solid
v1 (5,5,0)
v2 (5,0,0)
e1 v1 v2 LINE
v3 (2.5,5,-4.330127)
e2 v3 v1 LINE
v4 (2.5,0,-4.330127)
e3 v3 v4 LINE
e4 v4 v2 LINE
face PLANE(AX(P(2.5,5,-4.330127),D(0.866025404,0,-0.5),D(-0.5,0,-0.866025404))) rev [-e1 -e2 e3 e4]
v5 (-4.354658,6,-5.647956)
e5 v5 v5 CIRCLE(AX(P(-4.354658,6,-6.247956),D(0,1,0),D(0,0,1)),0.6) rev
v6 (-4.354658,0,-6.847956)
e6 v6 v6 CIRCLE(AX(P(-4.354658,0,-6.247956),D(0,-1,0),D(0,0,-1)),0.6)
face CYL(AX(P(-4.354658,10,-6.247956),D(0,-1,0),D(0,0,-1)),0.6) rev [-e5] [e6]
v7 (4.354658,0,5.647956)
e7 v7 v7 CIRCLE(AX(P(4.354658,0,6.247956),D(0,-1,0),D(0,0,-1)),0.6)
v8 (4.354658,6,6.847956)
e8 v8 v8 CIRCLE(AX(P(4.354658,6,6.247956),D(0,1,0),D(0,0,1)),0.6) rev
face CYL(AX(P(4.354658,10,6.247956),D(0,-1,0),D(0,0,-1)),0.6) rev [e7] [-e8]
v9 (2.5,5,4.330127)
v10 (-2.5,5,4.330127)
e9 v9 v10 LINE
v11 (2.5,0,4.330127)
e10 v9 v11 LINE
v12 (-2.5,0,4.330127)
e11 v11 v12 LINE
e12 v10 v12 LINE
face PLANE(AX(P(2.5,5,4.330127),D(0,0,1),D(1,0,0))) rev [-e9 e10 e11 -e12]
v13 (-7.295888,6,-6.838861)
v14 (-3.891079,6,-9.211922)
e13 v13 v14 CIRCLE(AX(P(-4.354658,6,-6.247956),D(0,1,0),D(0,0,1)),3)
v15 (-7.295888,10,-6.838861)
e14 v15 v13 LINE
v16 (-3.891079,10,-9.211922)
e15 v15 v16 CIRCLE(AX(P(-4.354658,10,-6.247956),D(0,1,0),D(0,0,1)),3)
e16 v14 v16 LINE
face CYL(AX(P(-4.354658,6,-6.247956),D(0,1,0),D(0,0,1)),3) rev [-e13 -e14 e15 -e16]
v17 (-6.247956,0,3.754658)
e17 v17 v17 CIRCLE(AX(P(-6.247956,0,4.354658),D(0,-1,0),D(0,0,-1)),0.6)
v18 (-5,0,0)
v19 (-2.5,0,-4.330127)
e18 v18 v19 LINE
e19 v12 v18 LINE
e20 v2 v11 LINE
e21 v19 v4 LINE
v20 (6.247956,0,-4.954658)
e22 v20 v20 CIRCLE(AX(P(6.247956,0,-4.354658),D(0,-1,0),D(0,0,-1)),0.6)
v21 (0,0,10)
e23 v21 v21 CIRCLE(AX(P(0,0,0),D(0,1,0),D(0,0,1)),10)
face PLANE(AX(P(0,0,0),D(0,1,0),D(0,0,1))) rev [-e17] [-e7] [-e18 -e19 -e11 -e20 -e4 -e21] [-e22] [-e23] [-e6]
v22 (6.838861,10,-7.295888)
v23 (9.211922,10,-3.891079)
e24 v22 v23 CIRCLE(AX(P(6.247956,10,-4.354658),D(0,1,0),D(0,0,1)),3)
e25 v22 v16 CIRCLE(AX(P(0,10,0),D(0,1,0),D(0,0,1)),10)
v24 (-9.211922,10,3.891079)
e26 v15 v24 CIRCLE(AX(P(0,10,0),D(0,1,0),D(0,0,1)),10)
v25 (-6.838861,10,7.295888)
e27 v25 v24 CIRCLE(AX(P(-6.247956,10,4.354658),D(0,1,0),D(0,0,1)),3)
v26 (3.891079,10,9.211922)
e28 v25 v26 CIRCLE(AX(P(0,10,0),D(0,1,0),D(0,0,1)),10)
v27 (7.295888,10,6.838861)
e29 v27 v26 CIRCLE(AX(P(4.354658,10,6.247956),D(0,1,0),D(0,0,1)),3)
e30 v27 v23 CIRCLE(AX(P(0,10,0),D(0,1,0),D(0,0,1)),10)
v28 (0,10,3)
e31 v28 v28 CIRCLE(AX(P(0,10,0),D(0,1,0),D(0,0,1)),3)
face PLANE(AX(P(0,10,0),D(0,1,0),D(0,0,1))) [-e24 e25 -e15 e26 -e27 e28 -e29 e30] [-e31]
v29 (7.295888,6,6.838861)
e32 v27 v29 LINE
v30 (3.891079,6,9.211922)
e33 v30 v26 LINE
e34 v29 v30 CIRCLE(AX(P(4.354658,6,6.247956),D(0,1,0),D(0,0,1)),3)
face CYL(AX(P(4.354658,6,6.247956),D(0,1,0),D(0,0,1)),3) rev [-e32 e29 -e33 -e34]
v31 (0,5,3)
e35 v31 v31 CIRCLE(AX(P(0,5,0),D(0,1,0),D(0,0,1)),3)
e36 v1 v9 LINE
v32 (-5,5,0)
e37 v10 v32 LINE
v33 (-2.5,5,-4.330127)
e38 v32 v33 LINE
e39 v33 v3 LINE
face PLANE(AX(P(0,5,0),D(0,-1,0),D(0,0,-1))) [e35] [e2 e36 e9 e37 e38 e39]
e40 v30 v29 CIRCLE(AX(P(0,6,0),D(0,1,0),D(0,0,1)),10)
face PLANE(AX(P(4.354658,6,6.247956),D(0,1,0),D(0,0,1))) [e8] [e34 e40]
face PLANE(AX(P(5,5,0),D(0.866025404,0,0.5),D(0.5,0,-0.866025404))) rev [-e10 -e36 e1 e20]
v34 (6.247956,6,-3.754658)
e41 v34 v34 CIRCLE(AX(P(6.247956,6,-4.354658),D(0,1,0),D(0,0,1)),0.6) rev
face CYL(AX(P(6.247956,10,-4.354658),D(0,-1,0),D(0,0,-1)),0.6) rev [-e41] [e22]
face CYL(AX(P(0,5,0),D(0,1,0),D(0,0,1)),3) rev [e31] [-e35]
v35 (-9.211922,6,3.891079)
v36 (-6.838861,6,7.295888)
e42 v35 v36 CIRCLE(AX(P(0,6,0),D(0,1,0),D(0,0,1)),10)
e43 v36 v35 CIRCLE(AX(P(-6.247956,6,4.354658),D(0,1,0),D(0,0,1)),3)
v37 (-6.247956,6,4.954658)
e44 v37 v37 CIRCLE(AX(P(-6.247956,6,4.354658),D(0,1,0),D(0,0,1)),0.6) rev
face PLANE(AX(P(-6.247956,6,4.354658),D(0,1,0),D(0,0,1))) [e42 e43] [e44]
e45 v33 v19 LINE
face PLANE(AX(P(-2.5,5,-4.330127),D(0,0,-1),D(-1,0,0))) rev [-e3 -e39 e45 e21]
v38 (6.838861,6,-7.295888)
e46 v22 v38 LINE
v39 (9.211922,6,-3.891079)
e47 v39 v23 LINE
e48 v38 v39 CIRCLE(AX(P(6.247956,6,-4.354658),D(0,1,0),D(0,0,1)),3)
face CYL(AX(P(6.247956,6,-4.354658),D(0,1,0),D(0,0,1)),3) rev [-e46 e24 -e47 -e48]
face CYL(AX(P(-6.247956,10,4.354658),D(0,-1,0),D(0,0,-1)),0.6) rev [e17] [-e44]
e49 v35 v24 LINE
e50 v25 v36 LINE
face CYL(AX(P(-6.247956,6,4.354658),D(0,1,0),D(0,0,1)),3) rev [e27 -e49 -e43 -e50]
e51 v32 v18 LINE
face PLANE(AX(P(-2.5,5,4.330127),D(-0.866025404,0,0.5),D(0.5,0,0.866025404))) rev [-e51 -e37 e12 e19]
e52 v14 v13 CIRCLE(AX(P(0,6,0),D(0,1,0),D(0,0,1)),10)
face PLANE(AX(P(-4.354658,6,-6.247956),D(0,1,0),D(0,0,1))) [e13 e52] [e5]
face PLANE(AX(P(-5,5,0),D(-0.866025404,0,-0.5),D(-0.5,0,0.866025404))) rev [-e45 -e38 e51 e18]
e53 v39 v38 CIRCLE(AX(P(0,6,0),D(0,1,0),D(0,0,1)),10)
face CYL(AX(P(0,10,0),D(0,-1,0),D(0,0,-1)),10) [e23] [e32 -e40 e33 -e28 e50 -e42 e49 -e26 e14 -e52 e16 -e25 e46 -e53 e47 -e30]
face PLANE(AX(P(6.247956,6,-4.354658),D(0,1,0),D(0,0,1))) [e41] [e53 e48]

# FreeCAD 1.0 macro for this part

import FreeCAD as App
import Part
import Sketcher
from FreeCAD import Vector
Q = App.Units.Quantity


def add_polygon(sketch, points):
    """Adds a closed chain of lines whose ends are joined by coincident constraints."""
    first, n = sketch.GeometryCount, len(points)
    for a, b in zip(points, points[1:] + points[:1]):
        sketch.addGeometry(Part.LineSegment(App.Vector(*a, 0), App.Vector(*b, 0)), False)
    for i in range(n):
        sketch.addConstraint(Sketcher.Constraint("Coincident", first + i, 2, first + (i + 1) % n, 1))

doc = App.newDocument("Part")
body = doc.addObject("PartDesign::Body", "Body")

sketch1 = body.newObject("Sketcher::SketchObject", "Sketch")
sketch1.AttachmentSupport = (doc.getObject("XZ_Plane"), [""])
sketch1.MapMode = "FlatFace"
sketch1.addGeometry(Part.Circle(Vector(0, 0, 0), Vector(0, 0, 1), 10), False)
sketch1.addConstraint(Sketcher.Constraint("Coincident", 0, 3, -1, 1))
sketch1.addConstraint(Sketcher.Constraint("Diameter", 0, Q("20 mm")))
pad1 = body.newObject("PartDesign::Pad", "Pad")
pad1.Profile = sketch1
pad1.Length = 10
pad1.Reversed = True

sketch2 = body.newObject("Sketcher::SketchObject", "Sketch001")
sketch2.AttachmentSupport = (doc.getObject("XZ_Plane"), [""])
sketch2.MapMode = "FlatFace"
add_polygon(sketch2, [(5, 0), (2, 4), (-2, 4), (-5, 0), (-2, -4), (2, -4)])
sketch2.addConstraint(Sketcher.Constraint("Horizontal", 1))
sketch2.addConstraint(Sketcher.Constraint("Horizontal", 4))
sketch2.addConstraint(Sketcher.Constraint("Symmetric", 0, 2, 3, 2, -1, 1))
sketch2.addConstraint(Sketcher.Constraint("Symmetric", 2, 2, 5, 2, -1, 1))
sketch2.addConstraint(Sketcher.Constraint("PointOnObject", 2, 2, -1))
sketch2.addConstraint(Sketcher.Constraint("Parallel", 2, 5))
sketch2.addConstraint(Sketcher.Constraint("Vertical", 1, 2, 3, 2))
sketch2.addConstraint(Sketcher.Constraint("DistanceX", 1, 2, 1, 1, Q("5 mm")))
sketch2.addConstraint(Sketcher.Constraint("Angle", 0, Q("120 deg")))
sketch2.addConstraint(Sketcher.Constraint("Distance", 0, Q("5 mm")))
pocket1 = body.newObject("PartDesign::Pocket", "Pocket")
pocket1.Profile = sketch2
pocket1.Length = 5

sketch3 = body.newObject("Sketcher::SketchObject", "Sketch002")
sketch3.AttachmentSupport = (doc.getObject("XZ_Plane"), [""])
sketch3.MapMode = "FlatFace"
sketch3.addGeometry(Part.Circle(Vector(-6.2, 4.4, 0), Vector(0, 0, 1), 0.6), False)
sketch3.addGeometry(Part.Circle(Vector(6.2, -4.4, 0), Vector(0, 0, 1), 0.6), False)
sketch3.addGeometry(Part.Circle(Vector(4.4, 6.2, 0), Vector(0, 0, 1), 0.6), False)
sketch3.addGeometry(Part.Circle(Vector(-4.4, -6.2, 0), Vector(0, 0, 1), 0.6), False)
sketch3.addConstraint(Sketcher.Constraint("Equal", 0, 1))
sketch3.addConstraint(Sketcher.Constraint("Equal", 1, 2))
sketch3.addConstraint(Sketcher.Constraint("Equal", 2, 3))
sketch3.addConstraint(Sketcher.Constraint("Symmetric", 0, 3, 1, 3, -1, 1))
sketch3.addConstraint(Sketcher.Constraint("Symmetric", 2, 3, 3, 3, -1, 1))
sketch3.addConstraint(Sketcher.Constraint("Diameter", 0, Q("1.2 mm")))
sketch3.addConstraint(Sketcher.Constraint("DistanceY", -1, 1, 0, 3, Q("4.354658 mm")))
sketch3.addConstraint(Sketcher.Constraint("DistanceX", -1, 1, 2, 3, Q("4.354658 mm")))
sketch3.addConstraint(Sketcher.Constraint("DistanceX", 0, 3, 1, 3, Q("12.495912 mm")))
sketch3.addConstraint(Sketcher.Constraint("DistanceY", 3, 3, 2, 3, Q("12.495912 mm")))
pocket2 = body.newObject("PartDesign::Pocket", "Pocket001")
pocket2.Profile = sketch3
pocket2.Length = 10

sketch4 = body.newObject("Sketcher::SketchObject", "Sketch003")
sketch4.AttachmentSupport = (doc.getObject("XZ_Plane"), [""])
sketch4.MapMode = "FlatFace"
sketch4.AttachmentOffset = App.Placement(Vector(0, 0, -10), App.Rotation())
sketch4.addGeometry(Part.Circle(Vector(0, 0, 0), Vector(0, 0, 1), 3), False)
sketch4.addConstraint(Sketcher.Constraint("Coincident", 0, 3, -1, 1))
sketch4.addConstraint(Sketcher.Constraint("Diameter", 0, Q("6 mm")))
pocket3 = body.newObject("PartDesign::Pocket", "Pocket002")
pocket3.Profile = sketch4
pocket3.Length = 5
pocket3.Reversed = True

sketch5 = body.newObject("Sketcher::SketchObject", "Sketch004")
sketch5.AttachmentSupport = (doc.getObject("XZ_Plane"), [""])
sketch5.MapMode = "FlatFace"
sketch5.AttachmentOffset = App.Placement(Vector(0, 0, -10), App.Rotation())
sketch5.addGeometry(Part.Circle(Vector(6.2, -4.4, 0), Vector(0, 0, 1), 3), False)
sketch5.addGeometry(Part.Circle(Vector(-4.4, -6.2, 0), Vector(0, 0, 1), 3), False)
sketch5.addGeometry(Part.Circle(Vector(-6.2, 4.4, 0), Vector(0, 0, 1), 3), False)
sketch5.addGeometry(Part.Circle(Vector(4.4, 6.2, 0), Vector(0, 0, 1), 3), False)
sketch5.addConstraint(Sketcher.Constraint("Equal", 0, 1))
sketch5.addConstraint(Sketcher.Constraint("Equal", 1, 2))
sketch5.addConstraint(Sketcher.Constraint("Equal", 2, 3))
sketch5.addConstraint(Sketcher.Constraint("Symmetric", 0, 3, 2, 3, -1, 1))
sketch5.addConstraint(Sketcher.Constraint("Symmetric", 1, 3, 3, 3, -1, 1))
sketch5.addConstraint(Sketcher.Constraint("Diameter", 0, Q("6 mm")))
sketch5.addConstraint(Sketcher.Constraint("DistanceY", 0, 3, -1, 1, Q("4.354658 mm")))
sketch5.addConstraint(Sketcher.Constraint("DistanceX", 1, 3, -1, 1, Q("4.354658 mm")))
sketch5.addConstraint(Sketcher.Constraint("DistanceX", 2, 3, 0, 3, Q("12.495912 mm")))
sketch5.addConstraint(Sketcher.Constraint("DistanceY", 1, 3, 3, 3, Q("12.495912 mm")))
pocket4 = body.newObject("PartDesign::Pocket", "Pocket003")
pocket4.Profile = sketch5
pocket4.Length = 4
pocket4.Reversed = True

doc.recompute()
